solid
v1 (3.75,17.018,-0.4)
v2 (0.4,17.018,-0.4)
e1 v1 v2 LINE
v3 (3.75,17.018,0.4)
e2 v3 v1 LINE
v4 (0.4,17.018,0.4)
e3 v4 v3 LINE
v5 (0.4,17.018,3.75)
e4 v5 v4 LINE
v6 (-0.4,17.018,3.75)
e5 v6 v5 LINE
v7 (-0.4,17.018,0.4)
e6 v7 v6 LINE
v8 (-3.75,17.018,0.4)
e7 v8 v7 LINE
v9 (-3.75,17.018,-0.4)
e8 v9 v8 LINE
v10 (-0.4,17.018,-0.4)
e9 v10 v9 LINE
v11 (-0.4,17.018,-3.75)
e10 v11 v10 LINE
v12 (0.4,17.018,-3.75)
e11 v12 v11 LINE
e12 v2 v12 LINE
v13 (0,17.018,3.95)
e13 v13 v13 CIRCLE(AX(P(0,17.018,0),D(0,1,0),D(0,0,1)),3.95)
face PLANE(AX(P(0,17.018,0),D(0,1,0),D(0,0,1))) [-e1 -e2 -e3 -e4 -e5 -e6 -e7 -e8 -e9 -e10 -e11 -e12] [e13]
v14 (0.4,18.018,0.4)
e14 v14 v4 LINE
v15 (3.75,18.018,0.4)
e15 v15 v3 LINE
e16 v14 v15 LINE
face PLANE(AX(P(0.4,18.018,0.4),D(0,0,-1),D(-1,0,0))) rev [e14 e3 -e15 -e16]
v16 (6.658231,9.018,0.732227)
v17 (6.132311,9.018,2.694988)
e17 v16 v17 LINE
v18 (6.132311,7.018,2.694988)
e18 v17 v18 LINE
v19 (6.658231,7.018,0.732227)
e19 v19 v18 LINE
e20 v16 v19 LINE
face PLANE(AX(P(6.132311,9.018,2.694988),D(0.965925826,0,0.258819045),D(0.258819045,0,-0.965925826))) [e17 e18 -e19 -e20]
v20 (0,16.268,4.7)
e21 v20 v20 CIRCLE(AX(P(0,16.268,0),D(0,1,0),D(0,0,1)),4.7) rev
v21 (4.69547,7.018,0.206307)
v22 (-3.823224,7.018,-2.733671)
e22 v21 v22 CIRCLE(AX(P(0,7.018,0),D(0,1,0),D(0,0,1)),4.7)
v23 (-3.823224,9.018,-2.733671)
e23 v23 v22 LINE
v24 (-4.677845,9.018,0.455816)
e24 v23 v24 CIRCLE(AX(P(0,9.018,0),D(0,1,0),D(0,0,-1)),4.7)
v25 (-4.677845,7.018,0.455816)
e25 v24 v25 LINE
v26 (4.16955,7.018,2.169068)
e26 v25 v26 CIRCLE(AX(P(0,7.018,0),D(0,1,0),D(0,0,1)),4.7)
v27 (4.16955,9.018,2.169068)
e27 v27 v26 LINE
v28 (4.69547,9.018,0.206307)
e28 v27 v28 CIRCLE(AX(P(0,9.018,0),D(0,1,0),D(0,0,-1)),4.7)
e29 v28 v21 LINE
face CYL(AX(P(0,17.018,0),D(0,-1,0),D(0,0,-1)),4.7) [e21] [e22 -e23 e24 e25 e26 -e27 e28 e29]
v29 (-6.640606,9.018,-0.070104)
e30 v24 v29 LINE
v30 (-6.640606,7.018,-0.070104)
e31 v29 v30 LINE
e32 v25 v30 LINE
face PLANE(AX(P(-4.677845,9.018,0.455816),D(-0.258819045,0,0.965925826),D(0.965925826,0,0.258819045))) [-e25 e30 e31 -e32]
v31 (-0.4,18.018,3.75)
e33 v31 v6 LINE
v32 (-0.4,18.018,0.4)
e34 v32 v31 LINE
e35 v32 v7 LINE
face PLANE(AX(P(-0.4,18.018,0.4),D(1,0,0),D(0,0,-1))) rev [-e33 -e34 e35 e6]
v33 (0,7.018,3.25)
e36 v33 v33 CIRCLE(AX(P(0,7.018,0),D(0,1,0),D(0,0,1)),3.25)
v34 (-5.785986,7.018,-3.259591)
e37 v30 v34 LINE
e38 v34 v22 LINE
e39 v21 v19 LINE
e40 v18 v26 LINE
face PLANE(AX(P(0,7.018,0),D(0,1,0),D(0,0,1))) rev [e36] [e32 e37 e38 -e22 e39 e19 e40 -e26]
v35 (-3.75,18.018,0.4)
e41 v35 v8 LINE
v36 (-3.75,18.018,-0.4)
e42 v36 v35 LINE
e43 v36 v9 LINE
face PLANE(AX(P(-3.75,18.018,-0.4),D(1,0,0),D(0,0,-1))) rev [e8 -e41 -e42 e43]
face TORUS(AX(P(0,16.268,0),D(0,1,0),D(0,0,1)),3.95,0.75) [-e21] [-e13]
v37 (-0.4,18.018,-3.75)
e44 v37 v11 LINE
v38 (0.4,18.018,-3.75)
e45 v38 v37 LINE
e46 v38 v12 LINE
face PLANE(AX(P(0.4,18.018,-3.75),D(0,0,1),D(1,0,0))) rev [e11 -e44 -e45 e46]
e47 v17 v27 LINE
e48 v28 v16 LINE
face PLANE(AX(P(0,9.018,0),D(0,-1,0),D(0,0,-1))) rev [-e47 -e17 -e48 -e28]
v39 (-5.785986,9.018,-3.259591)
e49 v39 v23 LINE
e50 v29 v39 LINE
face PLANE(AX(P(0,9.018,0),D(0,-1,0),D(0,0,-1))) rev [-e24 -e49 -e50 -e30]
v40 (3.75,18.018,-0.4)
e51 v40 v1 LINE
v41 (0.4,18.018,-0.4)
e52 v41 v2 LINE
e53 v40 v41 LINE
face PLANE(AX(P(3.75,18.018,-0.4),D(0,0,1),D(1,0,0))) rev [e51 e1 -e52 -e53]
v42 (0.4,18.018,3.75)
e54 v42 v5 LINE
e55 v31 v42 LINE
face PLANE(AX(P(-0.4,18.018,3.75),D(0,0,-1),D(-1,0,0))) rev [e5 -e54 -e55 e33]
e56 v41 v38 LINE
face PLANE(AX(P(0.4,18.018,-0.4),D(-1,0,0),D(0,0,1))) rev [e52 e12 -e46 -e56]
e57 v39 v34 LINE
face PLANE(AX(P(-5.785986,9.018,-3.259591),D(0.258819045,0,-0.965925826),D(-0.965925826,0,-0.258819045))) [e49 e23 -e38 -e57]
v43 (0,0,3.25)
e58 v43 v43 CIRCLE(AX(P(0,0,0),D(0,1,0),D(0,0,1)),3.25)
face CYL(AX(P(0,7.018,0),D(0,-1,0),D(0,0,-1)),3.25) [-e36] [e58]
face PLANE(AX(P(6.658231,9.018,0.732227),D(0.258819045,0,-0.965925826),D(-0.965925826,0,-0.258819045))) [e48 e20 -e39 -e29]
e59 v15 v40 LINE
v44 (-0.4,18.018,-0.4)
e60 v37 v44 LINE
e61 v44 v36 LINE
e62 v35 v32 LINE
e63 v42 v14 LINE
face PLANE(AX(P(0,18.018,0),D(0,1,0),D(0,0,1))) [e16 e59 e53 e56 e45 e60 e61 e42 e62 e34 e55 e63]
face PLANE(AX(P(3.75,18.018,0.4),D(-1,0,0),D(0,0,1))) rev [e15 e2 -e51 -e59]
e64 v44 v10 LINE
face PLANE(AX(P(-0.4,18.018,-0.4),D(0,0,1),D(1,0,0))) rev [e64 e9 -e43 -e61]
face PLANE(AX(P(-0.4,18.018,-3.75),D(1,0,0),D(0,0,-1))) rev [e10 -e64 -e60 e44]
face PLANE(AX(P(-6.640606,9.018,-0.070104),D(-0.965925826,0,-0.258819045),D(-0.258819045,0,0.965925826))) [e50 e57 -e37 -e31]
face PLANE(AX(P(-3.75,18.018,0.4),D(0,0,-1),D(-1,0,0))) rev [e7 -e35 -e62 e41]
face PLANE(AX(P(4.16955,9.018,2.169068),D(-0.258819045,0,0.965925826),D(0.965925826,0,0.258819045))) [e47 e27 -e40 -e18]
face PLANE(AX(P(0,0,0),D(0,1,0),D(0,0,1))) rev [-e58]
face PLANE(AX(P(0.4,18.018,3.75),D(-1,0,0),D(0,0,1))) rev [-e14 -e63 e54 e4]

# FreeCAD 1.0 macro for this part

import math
import FreeCAD as App
import Part
import Sketcher
Q = App.Units.Quantity


def edges_at(feature, points):
    """Names of the edges that pass closest to the given points."""
    edges = feature.Shape.Edges
    near = lambda p: min(range(len(edges)), key=lambda i: edges[i].distToShape(Part.Vertex(*p))[0])
    return sorted({f"Edge{near(p) + 1}" for p in points})

doc = App.newDocument("Part")
body = doc.addObject("PartDesign::Body", "Body")

sketch1 = body.newObject("Sketcher::SketchObject", "Sketch")
sketch1.AttachmentSupport = (doc.getObject("XZ_Plane"), [""])
sketch1.MapMode = "FlatFace"
sketch1.addGeometry(Part.Circle(App.Vector(0, 0, 0), App.Vector(0, 0, 1), 3.25), False)
sketch1.addConstraint([
    Sketcher.Constraint("Coincident", 0, 3, -1, 1),
    Sketcher.Constraint("Diameter", 0, 6.5),
])
pad1 = body.newObject("PartDesign::Pad", "Pad")
pad1.Profile = sketch1
pad1.Length = 7.018
pad1.Reversed = True

sketch2 = body.newObject("Sketcher::SketchObject", "Sketch001")
sketch2.AttachmentSupport = (doc.getObject("XZ_Plane"), [""])
sketch2.MapMode = "FlatFace"
sketch2.AttachmentOffset = App.Placement(App.Vector(0, 0, -7.018), App.Rotation())
sketch2.addGeometry(Part.Circle(App.Vector(0, 0, 0), App.Vector(0, 0, 1), 4.7), False)
sketch2.addConstraint([
    Sketcher.Constraint("Coincident", 0, 3, -1, 1),
    Sketcher.Constraint("Diameter", 0, 9.4),
])
pad2 = body.newObject("PartDesign::Pad", "Pad001")
pad2.Profile = sketch2
pad2.Length = 10
pad2.Reversed = True

sketch3 = body.newObject("Sketcher::SketchObject", "Sketch002")
sketch3.AttachmentSupport = (doc.getObject("XZ_Plane"), [""])
sketch3.MapMode = "FlatFace"
sketch3.AttachmentOffset = App.Placement(App.Vector(0, 0, -17.018), App.Rotation())
sketch3.addGeometry([
    Part.LineSegment(App.Vector(0.4, -3.75, 0), App.Vector(-0.4, -3.75, 0)),
    Part.LineSegment(App.Vector(-0.4, -3.75, 0), App.Vector(-0.4, -0.4, 0)),
    Part.LineSegment(App.Vector(-0.4, -0.4, 0), App.Vector(-3.75, -0.4, 0)),
    Part.LineSegment(App.Vector(-3.75, -0.4, 0), App.Vector(-3.75, 0.4, 0)),
    Part.LineSegment(App.Vector(-3.75, 0.4, 0), App.Vector(-0.4, 0.4, 0)),
    Part.LineSegment(App.Vector(-0.4, 0.4, 0), App.Vector(-0.4, 3.75, 0)),
    Part.LineSegment(App.Vector(-0.4, 3.75, 0), App.Vector(0.4, 3.75, 0)),
    Part.LineSegment(App.Vector(0.4, 3.75, 0), App.Vector(0.4, 0.4, 0)),
    Part.LineSegment(App.Vector(0.4, 0.4, 0), App.Vector(3.75, 0.4, 0)),
    Part.LineSegment(App.Vector(3.75, 0.4, 0), App.Vector(3.75, -0.4, 0)),
    Part.LineSegment(App.Vector(3.75, -0.4, 0), App.Vector(0.4, -0.4, 0)),
    Part.LineSegment(App.Vector(0.4, -0.4, 0), App.Vector(0.4, -3.75, 0)),
], False)
sketch3.addConstraint([
    Sketcher.Constraint("Coincident", 0, 2, 1, 1),
    Sketcher.Constraint("Coincident", 1, 2, 2, 1),
    Sketcher.Constraint("Coincident", 2, 2, 3, 1),
    Sketcher.Constraint("Coincident", 3, 2, 4, 1),
    Sketcher.Constraint("Coincident", 4, 2, 5, 1),
    Sketcher.Constraint("Coincident", 5, 2, 6, 1),
    Sketcher.Constraint("Coincident", 6, 2, 7, 1),
    Sketcher.Constraint("Coincident", 7, 2, 8, 1),
    Sketcher.Constraint("Coincident", 8, 2, 9, 1),
    Sketcher.Constraint("Coincident", 9, 2, 10, 1),
    Sketcher.Constraint("Coincident", 10, 2, 11, 1),
    Sketcher.Constraint("Coincident", 11, 2, 0, 1),
    Sketcher.Constraint("Horizontal", 0),
    Sketcher.Constraint("Vertical", 1),
    Sketcher.Constraint("Horizontal", 2),
    Sketcher.Constraint("Vertical", 3),
    Sketcher.Constraint("Horizontal", 4),
    Sketcher.Constraint("Vertical", 5),
    Sketcher.Constraint("Horizontal", 6),
    Sketcher.Constraint("Vertical", 7),
    Sketcher.Constraint("Horizontal", 8),
    Sketcher.Constraint("Vertical", 9),
    Sketcher.Constraint("Horizontal", 10),
    Sketcher.Constraint("Vertical", 11),
    Sketcher.Constraint("Symmetric", 0, 2, 6, 2, -1, 1),
    Sketcher.Constraint("Symmetric", 2, 2, 8, 2, -1, 1),
    Sketcher.Constraint("Symmetric", 4, 2, 10, 2, -1, 1),
    Sketcher.Constraint("Symmetric", 4, 2, 7, 2, -2),
    Sketcher.Constraint("Equal", 10, 1),
    Sketcher.Constraint("Equal", 6, 3),
    Sketcher.Constraint("DistanceX", 0, 2, 0, 1, 0.8),
    Sketcher.Constraint("DistanceX", 2, 2, 2, 1, 3.35),
])
pad3 = body.newObject("PartDesign::Pad", "Pad002")
pad3.Profile = sketch3
pad3.Length = 1
pad3.Reversed = True
doc.recompute()

fillet = body.newObject("PartDesign::Fillet", "Fillet")
fillet.Base = (pad3, edges_at(pad3, [(-4.7, 17.018, 0)]))
fillet.Radius = 0.75

sketch4 = body.newObject("Sketcher::SketchObject", "Sketch003")
sketch4.AttachmentSupport = (doc.getObject("XZ_Plane"), [""])
sketch4.MapMode = "FlatFace"
sketch4.AttachmentOffset = App.Placement(App.Vector(0, 0, -7.018), App.Rotation())
sketch4.addGeometry([
    Part.LineSegment(App.Vector(6.132311, 2.694988, 0), App.Vector(4.16955, 2.169068, 0)),
    Part.ArcOfCircle(Part.Circle(App.Vector(0, 0, 0), App.Vector(0, 0, 1), 4.7), math.radians(2.51581), math.radians(27.48419)),
    Part.LineSegment(App.Vector(4.69547, 0.206307, 0), App.Vector(6.658231, 0.732227, 0)),
    Part.LineSegment(App.Vector(6.658231, 0.732227, 0), App.Vector(6.132311, 2.694988, 0)),
    Part.LineSegment(App.Vector(-4.677845, 0.455816, 0), App.Vector(-6.640606, -0.070104, 0)),
    Part.LineSegment(App.Vector(-6.640606, -0.070104, 0), App.Vector(-5.785986, -3.259591, 0)),
    Part.LineSegment(App.Vector(-5.785986, -3.259591, 0), App.Vector(-3.823224, -2.733671, 0)),
    Part.ArcOfCircle(Part.Circle(App.Vector(0, 0, 0), App.Vector(0, 0, 1), 4.7), math.radians(174.434583), math.radians(215.565417)),
], False)
sketch4.addConstraint([
    Sketcher.Constraint("Coincident", 0, 2, 1, 2),
    Sketcher.Constraint("Coincident", 1, 1, 2, 1),
    Sketcher.Constraint("Coincident", 2, 2, 3, 1),
    Sketcher.Constraint("Coincident", 3, 2, 0, 1),
    Sketcher.Constraint("Coincident", 4, 2, 5, 1),
    Sketcher.Constraint("Coincident", 5, 2, 6, 1),
    Sketcher.Constraint("Coincident", 6, 2, 7, 2),
    Sketcher.Constraint("Coincident", 7, 1, 4, 1),
    Sketcher.Constraint("Coincident", 1, 3, -1, 1),
    Sketcher.Constraint("Coincident", 7, 3, -1, 1),
    Sketcher.Constraint("Equal", 1, 7),
    Sketcher.Constraint("Parallel", 0, 2),
    Sketcher.Constraint("Perpendicular", 2, 3),
    Sketcher.Constraint("Perpendicular", 3, 4),
    Sketcher.Constraint("Perpendicular", 4, 5),
    Sketcher.Constraint("Perpendicular", 5, 6),
    Sketcher.Constraint("Equal", 0, 2),
    Sketcher.Constraint("Equal", 2, 3),
    Sketcher.Constraint("Equal", 3, 4),
    Sketcher.Constraint("Equal", 4, 6),
    Sketcher.Constraint("Radius", 1, 4.7),
    Sketcher.Constraint("Angle", 0, Q("-165 deg")),
    Sketcher.Constraint("Distance", 0, 2.032),
    Sketcher.Constraint("Distance", 5, 3.302),
])
pad4 = body.newObject("PartDesign::Pad", "Pad003")
pad4.Profile = sketch4
pad4.Length = 2
pad4.Reversed = True

doc.recompute()
